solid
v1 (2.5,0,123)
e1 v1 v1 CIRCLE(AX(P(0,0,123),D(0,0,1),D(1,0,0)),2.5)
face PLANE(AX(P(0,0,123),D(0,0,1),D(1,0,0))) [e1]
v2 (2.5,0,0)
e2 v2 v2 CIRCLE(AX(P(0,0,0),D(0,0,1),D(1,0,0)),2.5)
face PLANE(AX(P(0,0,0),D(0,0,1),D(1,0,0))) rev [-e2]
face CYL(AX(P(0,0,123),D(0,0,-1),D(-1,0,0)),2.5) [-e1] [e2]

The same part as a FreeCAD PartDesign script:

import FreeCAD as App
import Part
import Sketcher

doc = App.newDocument("Part")
body = doc.addObject("PartDesign::Body", "Body")

sketch1 = body.newObject("Sketcher::SketchObject", "Sketch")
sketch1.AttachmentSupport = (doc.getObject("XY_Plane"), [""])
sketch1.MapMode = "FlatFace"
sketch1.addGeometry(Part.Circle(App.Vector(0, 0, 0), App.Vector(0, 0, 1), 2.5), False)
sketch1.addConstraint([
    Sketcher.Constraint("Coincident", 0, 3, -1, 1),
    Sketcher.Constraint("Diameter", 0, 5.0),
])
pad1 = body.newObject("PartDesign::Pad", "Pad")
pad1.Profile = sketch1
pad1.Length = 123

doc.recompute()
